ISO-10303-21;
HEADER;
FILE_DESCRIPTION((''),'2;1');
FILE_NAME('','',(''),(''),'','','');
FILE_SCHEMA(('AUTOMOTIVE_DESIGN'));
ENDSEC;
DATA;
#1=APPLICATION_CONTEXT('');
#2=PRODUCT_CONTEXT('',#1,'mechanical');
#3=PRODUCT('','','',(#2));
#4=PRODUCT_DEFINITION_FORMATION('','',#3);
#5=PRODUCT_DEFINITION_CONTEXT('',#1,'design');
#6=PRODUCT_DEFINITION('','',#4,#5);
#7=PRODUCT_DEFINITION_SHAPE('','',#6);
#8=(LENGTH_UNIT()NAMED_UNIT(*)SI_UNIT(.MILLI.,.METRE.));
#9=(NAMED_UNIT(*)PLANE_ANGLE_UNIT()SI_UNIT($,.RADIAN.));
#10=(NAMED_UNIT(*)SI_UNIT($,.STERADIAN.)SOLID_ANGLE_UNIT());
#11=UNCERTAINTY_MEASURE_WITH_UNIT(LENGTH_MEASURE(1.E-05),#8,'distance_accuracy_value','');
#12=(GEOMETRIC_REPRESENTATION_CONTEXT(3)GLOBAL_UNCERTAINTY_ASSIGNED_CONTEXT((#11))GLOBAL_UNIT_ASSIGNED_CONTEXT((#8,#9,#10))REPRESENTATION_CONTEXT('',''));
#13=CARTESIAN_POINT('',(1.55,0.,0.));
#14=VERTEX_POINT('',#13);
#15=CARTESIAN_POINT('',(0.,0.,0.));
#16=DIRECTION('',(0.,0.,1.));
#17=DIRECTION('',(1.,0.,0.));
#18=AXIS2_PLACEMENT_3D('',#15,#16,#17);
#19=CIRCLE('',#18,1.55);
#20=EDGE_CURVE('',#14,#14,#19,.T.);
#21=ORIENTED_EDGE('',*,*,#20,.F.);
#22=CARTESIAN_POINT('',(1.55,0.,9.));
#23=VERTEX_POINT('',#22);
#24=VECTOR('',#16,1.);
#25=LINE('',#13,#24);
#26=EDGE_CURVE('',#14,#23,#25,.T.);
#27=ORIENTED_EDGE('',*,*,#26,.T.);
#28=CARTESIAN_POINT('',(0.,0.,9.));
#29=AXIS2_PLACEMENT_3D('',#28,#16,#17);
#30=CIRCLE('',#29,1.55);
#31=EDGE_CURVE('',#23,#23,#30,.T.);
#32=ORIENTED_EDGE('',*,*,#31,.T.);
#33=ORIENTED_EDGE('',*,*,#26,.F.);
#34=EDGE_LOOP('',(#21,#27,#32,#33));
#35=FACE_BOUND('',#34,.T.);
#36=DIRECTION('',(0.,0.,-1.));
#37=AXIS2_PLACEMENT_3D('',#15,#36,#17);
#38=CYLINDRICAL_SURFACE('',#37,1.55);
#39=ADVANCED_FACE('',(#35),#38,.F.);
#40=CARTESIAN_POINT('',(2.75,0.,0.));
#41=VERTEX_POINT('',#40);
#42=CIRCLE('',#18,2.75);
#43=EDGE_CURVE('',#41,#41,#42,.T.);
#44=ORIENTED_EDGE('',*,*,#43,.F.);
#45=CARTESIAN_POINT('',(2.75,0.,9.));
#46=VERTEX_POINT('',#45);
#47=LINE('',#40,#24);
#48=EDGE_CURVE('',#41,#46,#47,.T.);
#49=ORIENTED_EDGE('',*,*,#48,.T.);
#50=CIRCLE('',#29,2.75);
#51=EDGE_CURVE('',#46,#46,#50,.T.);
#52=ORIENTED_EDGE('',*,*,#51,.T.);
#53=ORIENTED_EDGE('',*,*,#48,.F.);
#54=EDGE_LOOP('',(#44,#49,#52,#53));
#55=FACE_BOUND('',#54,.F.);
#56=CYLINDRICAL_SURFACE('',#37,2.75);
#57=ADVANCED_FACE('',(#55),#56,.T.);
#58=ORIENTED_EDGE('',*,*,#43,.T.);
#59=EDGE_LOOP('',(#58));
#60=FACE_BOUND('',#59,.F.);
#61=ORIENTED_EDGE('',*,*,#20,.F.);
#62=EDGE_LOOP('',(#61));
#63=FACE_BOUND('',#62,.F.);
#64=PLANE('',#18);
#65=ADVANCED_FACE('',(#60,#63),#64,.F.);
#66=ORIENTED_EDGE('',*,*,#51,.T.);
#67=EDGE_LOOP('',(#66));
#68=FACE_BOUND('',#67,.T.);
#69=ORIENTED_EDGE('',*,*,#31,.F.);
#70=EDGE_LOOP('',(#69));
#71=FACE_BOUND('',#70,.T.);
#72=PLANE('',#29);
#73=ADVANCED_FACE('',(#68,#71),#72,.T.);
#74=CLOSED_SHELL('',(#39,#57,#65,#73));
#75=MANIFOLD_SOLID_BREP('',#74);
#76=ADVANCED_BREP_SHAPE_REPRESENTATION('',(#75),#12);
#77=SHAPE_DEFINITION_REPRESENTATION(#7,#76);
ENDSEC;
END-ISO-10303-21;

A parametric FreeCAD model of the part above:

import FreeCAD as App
import Part
import Sketcher
from FreeCAD import Vector

doc = App.newDocument("Part")
body = doc.addObject("PartDesign::Body", "Body")

# Sketch on XY plane
sketch1 = body.newObject("Sketcher::SketchObject", "Sketch")
sketch1.AttachmentSupport = (doc.getObject("XY_Plane"), [""])
sketch1.MapMode = "FlatFace"
sketch1.addGeometry(Part.Circle(Vector(0, 0, 0), Vector(0, 0, 1), 2.8), False)
sketch1.addGeometry(Part.Circle(Vector(0, 0, 0), Vector(0, 0, 1), 1.6), False)
sketch1.addConstraint(Sketcher.Constraint("Coincident", 0, 3, -1, 1))
sketch1.addConstraint(Sketcher.Constraint("Coincident", 1, 3, -1, 1))
sketch1.addConstraint(Sketcher.Constraint("Diameter", 0, 5.5))
sketch1.addConstraint(Sketcher.Constraint("Diameter", 1, 3.1))
pad1 = body.newObject("PartDesign::Pad", "Pad")
pad1.Profile = sketch1
pad1.Length = 9

doc.recompute()
